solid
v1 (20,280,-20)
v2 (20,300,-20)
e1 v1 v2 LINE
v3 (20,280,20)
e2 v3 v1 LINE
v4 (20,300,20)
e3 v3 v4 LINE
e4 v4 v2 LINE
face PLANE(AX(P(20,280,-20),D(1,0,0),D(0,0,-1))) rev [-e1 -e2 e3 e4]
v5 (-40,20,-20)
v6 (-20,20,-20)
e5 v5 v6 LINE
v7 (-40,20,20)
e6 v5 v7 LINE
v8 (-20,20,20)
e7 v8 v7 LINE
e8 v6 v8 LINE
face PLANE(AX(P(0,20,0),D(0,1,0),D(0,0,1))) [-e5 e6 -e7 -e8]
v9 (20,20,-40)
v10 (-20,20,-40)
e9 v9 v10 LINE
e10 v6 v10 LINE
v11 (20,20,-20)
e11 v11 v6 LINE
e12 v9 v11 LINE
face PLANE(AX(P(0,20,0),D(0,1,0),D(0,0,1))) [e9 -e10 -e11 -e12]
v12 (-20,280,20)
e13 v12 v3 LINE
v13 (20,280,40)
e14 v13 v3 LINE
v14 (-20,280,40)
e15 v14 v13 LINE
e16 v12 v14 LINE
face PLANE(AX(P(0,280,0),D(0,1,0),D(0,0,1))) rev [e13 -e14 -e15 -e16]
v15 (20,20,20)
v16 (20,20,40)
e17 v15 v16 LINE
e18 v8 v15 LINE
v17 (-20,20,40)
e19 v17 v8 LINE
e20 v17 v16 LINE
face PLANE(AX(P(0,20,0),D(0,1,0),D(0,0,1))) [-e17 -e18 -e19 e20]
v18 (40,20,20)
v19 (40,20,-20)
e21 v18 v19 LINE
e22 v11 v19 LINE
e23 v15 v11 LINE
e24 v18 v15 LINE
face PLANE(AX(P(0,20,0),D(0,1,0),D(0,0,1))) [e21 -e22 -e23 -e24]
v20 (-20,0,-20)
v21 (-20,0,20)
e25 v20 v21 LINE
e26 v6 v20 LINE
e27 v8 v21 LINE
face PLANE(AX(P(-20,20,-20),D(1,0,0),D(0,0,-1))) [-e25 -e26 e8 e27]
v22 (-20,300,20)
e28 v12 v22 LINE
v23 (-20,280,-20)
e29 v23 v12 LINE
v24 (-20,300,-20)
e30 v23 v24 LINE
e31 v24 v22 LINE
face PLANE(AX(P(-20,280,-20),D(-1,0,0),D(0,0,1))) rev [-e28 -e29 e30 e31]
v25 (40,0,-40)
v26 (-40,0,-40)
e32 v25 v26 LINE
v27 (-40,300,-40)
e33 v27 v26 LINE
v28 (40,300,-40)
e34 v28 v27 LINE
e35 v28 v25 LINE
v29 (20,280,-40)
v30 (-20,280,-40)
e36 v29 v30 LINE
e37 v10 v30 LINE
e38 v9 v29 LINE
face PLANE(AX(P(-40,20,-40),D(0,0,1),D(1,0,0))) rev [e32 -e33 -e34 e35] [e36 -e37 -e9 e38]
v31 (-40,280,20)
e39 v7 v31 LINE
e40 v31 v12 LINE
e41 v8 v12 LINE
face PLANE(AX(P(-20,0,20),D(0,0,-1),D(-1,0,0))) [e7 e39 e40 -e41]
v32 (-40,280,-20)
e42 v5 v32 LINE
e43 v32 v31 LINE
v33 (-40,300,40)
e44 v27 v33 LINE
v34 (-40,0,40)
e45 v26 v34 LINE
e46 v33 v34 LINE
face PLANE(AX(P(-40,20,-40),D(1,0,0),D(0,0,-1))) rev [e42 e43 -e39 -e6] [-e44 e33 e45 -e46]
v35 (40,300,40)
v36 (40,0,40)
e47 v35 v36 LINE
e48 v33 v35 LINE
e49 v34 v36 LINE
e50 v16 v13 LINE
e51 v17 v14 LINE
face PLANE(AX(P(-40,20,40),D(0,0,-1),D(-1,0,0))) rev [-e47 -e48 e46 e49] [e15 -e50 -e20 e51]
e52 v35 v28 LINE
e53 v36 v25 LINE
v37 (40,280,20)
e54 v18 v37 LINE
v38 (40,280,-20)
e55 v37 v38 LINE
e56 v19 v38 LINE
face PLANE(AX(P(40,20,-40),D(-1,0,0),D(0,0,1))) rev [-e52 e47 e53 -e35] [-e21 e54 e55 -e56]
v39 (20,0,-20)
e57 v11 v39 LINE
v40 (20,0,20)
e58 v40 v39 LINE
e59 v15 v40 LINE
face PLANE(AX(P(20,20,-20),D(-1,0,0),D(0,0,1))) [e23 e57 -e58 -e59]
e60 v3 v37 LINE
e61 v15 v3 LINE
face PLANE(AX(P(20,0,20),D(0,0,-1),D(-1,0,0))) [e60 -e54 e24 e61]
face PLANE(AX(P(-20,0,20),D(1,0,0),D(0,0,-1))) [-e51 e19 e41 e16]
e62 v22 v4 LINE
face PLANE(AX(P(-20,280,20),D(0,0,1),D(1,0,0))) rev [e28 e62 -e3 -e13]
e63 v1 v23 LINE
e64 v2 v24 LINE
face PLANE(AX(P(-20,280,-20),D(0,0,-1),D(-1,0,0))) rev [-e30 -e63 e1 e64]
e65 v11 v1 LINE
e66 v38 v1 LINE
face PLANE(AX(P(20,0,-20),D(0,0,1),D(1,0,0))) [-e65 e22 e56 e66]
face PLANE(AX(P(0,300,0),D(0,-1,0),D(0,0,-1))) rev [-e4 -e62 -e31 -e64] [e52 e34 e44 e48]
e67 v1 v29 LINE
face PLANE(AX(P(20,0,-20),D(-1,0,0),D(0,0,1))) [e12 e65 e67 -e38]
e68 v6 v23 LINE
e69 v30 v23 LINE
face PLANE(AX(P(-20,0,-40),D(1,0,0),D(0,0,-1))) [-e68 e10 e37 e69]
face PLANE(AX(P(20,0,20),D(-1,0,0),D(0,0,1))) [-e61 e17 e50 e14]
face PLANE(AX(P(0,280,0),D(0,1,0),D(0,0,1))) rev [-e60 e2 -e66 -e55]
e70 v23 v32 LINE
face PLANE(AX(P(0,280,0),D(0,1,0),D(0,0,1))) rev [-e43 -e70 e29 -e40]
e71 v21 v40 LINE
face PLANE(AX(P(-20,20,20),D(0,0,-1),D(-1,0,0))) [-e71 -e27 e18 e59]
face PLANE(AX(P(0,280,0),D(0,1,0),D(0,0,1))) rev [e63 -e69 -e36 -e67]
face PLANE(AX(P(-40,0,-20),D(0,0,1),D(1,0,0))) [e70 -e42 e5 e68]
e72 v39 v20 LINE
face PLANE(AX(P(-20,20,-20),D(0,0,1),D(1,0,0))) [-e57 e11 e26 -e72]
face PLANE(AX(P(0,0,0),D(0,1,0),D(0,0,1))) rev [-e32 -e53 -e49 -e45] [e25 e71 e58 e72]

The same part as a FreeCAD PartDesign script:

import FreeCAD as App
import Part
import Sketcher

V = App.Vector
Q = App.Units.Quantity


def add_polygon(sketch, points):
    """Adds a closed chain of lines whose ends are joined by coincident constraints."""
    first, n = sketch.GeometryCount, len(points)
    for a, b in zip(points, points[1:] + points[:1]):
        sketch.addGeometry(Part.LineSegment(App.Vector(*a, 0), App.Vector(*b, 0)), False)
    for i in range(n):
        sketch.addConstraint(Sketcher.Constraint("Coincident", first + i, 2, first + (i + 1) % n, 1))

doc = App.newDocument("Part")
body = doc.addObject("PartDesign::Body", "Body")

sketch1 = body.newObject("Sketcher::SketchObject", "Sketch")
sketch1.AttachmentSupport = (doc.getObject("XZ_Plane"), [""])
sketch1.MapMode = "FlatFace"
add_polygon(sketch1, [(-40, -40), (-40, 40), (40, 40), (40, -40)])
add_polygon(sketch1, [(20, 20), (-20, 20), (-20, -20), (20, -20)])
sketch1.addConstraint([
    Sketcher.Constraint("Vertical", 0),
    Sketcher.Constraint("Horizontal", 1),
    Sketcher.Constraint("Vertical", 2),
    Sketcher.Constraint("Horizontal", 3),
    Sketcher.Constraint("Horizontal", 4),
    Sketcher.Constraint("Vertical", 5),
    Sketcher.Constraint("Horizontal", 6),
    Sketcher.Constraint("Vertical", 7),
    Sketcher.Constraint("Symmetric", 0, 2, 2, 2, -1, 1),
    Sketcher.Constraint("Symmetric", 4, 2, 6, 2, -1, 1),
    Sketcher.Constraint("Equal", 3, 0),
    Sketcher.Constraint("Equal", 6, 5),
    Sketcher.Constraint("DistanceX", 1, 1, 1, 2, Q("80 mm")),
    Sketcher.Constraint("DistanceX", 4, 2, 4, 1, Q("40 mm")),
])
pad1 = body.newObject("PartDesign::Pad", "Pad")
pad1.Profile = sketch1
pad1.Length = 20
pad1.Reversed = True

sketch2 = body.newObject("Sketcher::SketchObject", "Sketch001")
sketch2.AttachmentSupport = (doc.getObject("XZ_Plane"), [""])
sketch2.MapMode = "FlatFace"
sketch2.AttachmentOffset = App.Placement(V(0, 0, -300), App.Rotation())
add_polygon(sketch2, [(-40, -40), (-40, -20), (-20, -20), (-20, -40)])
add_polygon(sketch2, [(20, -40), (20, -20), (40, -20), (40, -40)])
add_polygon(sketch2, [(20, 20), (20, 40), (40, 40), (40, 20)])
add_polygon(sketch2, [(-40, 20), (-40, 40), (-20, 40), (-20, 20)])
sketch2.addConstraint([
    Sketcher.Constraint("Vertical", 0),
    Sketcher.Constraint("Horizontal", 1),
    Sketcher.Constraint("Vertical", 2),
    Sketcher.Constraint("Horizontal", 3),
    Sketcher.Constraint("Vertical", 4),
    Sketcher.Constraint("Horizontal", 5),
    Sketcher.Constraint("Vertical", 6),
    Sketcher.Constraint("Horizontal", 7),
    Sketcher.Constraint("Vertical", 8),
    Sketcher.Constraint("Horizontal", 9),
    Sketcher.Constraint("Vertical", 10),
    Sketcher.Constraint("Horizontal", 11),
    Sketcher.Constraint("Vertical", 12),
    Sketcher.Constraint("Horizontal", 13),
    Sketcher.Constraint("Vertical", 14),
    Sketcher.Constraint("Horizontal", 15),
    Sketcher.Constraint("Symmetric", 2, 2, 8, 2, -1, 1),
    Sketcher.Constraint("Symmetric", 0, 2, 10, 2, -1, 1),
    Sketcher.Constraint("Symmetric", 6, 2, 12, 2, -1, 1),
    Sketcher.Constraint("Symmetric", 4, 2, 14, 2, -1, 1),
    Sketcher.Constraint("Symmetric", 1, 2, 4, 2, -2),
    Sketcher.Constraint("Symmetric", 3, 2, 6, 2, -2),
    Sketcher.Constraint("Equal", 15, 0),
    Sketcher.Constraint("DistanceX", 1, 1, 1, 2, Q("20 mm")),
    Sketcher.Constraint("DistanceX", 0, 2, -1, 1, Q("40 mm")),
    Sketcher.Constraint("DistanceY", 0, 2, -1, 1, Q("20 mm")),
])
pad2 = body.newObject("PartDesign::Pad", "Pad001")
pad2.Profile = sketch2
pad2.Length = 300

sketch3 = body.newObject("Sketcher::SketchObject", "Sketch002")
sketch3.AttachmentSupport = (doc.getObject("XZ_Plane"), [""])
sketch3.MapMode = "FlatFace"
sketch3.AttachmentOffset = App.Placement(V(0, 0, -300), App.Rotation())
add_polygon(sketch3, [(-40, -40), (-40, 40), (40, 40), (40, -40)])
add_polygon(sketch3, [(20, 20), (-20, 20), (-20, -20), (20, -20)])
sketch3.addConstraint([
    Sketcher.Constraint("Vertical", 0),
    Sketcher.Constraint("Horizontal", 1),
    Sketcher.Constraint("Vertical", 2),
    Sketcher.Constraint("Horizontal", 3),
    Sketcher.Constraint("Horizontal", 4),
    Sketcher.Constraint("Vertical", 5),
    Sketcher.Constraint("Horizontal", 6),
    Sketcher.Constraint("Vertical", 7),
    Sketcher.Constraint("Symmetric", 0, 2, 2, 2, -1, 1),
    Sketcher.Constraint("Symmetric", 4, 2, 6, 2, -1, 1),
    Sketcher.Constraint("Equal", 3, 0),
    Sketcher.Constraint("Equal", 6, 5),
    Sketcher.Constraint("DistanceX", 1, 1, 1, 2, Q("80 mm")),
    Sketcher.Constraint("DistanceX", 4, 2, 4, 1, Q("40 mm")),
])
pad3 = body.newObject("PartDesign::Pad", "Pad002")
pad3.Profile = sketch3
pad3.Length = 20

doc.recompute()
